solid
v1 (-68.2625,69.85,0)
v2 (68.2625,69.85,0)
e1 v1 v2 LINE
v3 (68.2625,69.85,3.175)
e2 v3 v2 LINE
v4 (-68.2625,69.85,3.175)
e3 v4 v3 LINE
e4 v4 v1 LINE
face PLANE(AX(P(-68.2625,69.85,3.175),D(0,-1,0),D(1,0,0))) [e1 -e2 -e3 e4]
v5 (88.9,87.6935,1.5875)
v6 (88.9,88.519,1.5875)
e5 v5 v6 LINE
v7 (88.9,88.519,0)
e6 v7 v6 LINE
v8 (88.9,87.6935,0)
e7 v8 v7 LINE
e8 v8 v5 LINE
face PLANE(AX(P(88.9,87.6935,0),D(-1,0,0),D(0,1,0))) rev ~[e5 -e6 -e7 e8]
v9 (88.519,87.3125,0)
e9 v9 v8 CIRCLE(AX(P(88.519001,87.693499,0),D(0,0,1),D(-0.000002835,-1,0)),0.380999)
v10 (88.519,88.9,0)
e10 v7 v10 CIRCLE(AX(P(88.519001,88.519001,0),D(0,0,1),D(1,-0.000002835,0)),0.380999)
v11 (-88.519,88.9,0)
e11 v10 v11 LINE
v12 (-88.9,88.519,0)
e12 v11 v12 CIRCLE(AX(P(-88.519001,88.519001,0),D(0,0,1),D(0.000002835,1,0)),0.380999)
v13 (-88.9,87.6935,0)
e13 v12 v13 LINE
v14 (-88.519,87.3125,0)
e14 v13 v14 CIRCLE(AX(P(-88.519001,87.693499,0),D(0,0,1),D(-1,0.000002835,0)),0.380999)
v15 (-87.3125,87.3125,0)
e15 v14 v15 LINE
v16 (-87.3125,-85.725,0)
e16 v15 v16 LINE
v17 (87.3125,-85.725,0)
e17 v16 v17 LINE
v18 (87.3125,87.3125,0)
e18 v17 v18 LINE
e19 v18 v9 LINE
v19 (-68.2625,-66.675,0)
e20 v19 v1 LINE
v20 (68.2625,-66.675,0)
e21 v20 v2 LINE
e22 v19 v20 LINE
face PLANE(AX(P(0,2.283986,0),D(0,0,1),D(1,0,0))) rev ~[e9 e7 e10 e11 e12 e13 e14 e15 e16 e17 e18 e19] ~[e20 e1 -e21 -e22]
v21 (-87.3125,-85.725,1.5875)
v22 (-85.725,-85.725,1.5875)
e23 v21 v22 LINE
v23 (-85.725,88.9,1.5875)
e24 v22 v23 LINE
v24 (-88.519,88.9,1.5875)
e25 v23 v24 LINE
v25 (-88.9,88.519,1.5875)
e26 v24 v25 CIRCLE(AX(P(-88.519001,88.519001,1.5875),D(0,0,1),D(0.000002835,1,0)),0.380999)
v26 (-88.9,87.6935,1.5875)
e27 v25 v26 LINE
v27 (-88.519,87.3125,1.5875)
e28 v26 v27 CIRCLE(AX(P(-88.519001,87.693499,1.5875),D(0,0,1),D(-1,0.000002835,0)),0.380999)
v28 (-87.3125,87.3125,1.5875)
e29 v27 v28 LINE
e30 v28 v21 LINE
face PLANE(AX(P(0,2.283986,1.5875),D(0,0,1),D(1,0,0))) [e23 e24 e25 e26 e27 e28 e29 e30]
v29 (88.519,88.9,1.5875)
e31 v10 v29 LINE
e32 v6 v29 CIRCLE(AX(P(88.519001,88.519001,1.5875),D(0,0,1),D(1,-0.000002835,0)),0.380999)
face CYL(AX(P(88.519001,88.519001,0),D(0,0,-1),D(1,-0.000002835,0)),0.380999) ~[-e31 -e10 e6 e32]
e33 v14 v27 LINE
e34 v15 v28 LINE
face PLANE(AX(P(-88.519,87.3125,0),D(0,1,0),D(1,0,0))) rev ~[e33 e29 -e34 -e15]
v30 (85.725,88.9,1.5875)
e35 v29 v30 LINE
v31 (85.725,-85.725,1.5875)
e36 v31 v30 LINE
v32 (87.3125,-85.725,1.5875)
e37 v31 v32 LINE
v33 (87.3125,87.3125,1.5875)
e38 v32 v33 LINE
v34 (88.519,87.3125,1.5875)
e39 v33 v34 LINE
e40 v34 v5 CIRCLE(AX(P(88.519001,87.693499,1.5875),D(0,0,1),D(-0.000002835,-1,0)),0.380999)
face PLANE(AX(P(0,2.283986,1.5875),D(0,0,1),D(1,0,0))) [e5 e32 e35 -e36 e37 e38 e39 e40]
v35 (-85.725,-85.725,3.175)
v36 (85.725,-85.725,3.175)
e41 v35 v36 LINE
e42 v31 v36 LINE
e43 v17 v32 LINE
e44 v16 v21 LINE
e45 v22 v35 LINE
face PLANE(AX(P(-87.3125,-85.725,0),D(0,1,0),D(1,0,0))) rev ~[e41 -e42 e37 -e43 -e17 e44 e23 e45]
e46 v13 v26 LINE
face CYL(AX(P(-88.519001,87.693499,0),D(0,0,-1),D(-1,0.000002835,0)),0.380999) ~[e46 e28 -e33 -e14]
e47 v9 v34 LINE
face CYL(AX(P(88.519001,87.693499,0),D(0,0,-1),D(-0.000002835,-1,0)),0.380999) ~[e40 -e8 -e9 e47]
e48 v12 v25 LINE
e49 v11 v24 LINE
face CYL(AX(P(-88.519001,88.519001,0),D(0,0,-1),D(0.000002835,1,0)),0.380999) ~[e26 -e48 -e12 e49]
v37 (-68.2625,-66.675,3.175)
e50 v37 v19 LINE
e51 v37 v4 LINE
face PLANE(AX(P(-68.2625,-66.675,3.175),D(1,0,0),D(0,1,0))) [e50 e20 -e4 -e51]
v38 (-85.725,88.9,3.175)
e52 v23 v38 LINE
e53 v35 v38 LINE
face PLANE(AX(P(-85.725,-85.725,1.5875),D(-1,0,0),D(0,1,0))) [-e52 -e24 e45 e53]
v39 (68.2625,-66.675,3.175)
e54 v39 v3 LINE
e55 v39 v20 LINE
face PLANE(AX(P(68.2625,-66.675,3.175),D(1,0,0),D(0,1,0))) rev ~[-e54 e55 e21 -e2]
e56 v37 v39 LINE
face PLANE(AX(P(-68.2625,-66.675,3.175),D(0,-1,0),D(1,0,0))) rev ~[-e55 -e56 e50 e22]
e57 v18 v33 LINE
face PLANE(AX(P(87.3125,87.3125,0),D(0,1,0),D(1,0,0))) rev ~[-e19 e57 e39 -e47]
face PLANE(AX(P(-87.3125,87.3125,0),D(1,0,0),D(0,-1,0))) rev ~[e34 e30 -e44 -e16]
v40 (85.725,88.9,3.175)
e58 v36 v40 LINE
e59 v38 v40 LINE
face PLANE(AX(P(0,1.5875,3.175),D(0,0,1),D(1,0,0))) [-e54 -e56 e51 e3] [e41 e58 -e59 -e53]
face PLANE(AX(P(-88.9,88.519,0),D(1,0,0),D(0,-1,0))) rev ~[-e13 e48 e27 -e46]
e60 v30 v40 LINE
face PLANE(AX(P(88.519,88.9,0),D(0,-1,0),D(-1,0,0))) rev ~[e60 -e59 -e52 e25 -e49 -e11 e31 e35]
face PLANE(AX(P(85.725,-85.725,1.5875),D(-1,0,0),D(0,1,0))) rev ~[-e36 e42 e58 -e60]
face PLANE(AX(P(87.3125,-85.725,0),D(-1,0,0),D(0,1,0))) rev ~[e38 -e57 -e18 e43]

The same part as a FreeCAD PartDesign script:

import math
import FreeCAD as App
import Part
import Sketcher
Q = App.Units.Quantity

doc = App.newDocument("Part")
params = doc.addObject("Spreadsheet::Sheet", "Params")
for row, (alias, value) in enumerate([
    ("sketch1_radius", "0.015 in"),
    ("sketch1_width", "6.97 in"),
    ("sketch1_width2", "6.875 in"),
    ("sketch1_height", "6.8125 in"),
    ("pad1_length", "0.0625 in"),
    ("sketch2_width", "6.75 in"),
    ("sketch2_height", "6.875 in"),
    ("pad2_length", "0.0625 in"),
    ("sketch3_width", "5.375 in"),
    ("pocket1_length", "1 in"),
], start=1):
    params.set(f"A{row}", alias)
    params.set(f"B{row}", "=" + value)
    params.setAlias(f"B{row}", alias)

body = doc.addObject("PartDesign::Body", "Body")

sketch1 = body.newObject("Sketcher::SketchObject", "Sketch")
sketch1.AttachmentSupport = (doc.getObject("XY_Plane"), [""])
sketch1.MapMode = "FlatFace"
sketch1.addGeometry(Part.ArcOfCircle(Part.Circle(App.Vector(-88.52, 88.52, 0), App.Vector(0, 0, 1), 0.38), math.radians(90), math.radians(180)), False)
sketch1.addGeometry(Part.LineSegment(App.Vector(-88.9, 88.52, 0), App.Vector(-88.9, 87.69, 0)), False)
sketch1.addGeometry(Part.ArcOfCircle(Part.Circle(App.Vector(-88.52, 87.69, 0), App.Vector(0, 0, 1), 0.38), math.radians(180), math.radians(270)), False)
sketch1.addGeometry(Part.LineSegment(App.Vector(-88.52, 87.31, 0), App.Vector(-87.31, 87.31, 0)), False)
sketch1.addGeometry(Part.LineSegment(App.Vector(-87.31, 87.31, 0), App.Vector(-87.31, -85.72, 0)), False)
sketch1.addGeometry(Part.LineSegment(App.Vector(-87.31, -85.72, 0), App.Vector(87.31, -85.72, 0)), False)
sketch1.addGeometry(Part.LineSegment(App.Vector(87.31, -85.72, 0), App.Vector(87.31, 87.31, 0)), False)
sketch1.addGeometry(Part.LineSegment(App.Vector(87.31, 87.31, 0), App.Vector(88.52, 87.31, 0)), False)
sketch1.addGeometry(Part.ArcOfCircle(Part.Circle(App.Vector(88.52, 87.69, 0), App.Vector(0, 0, 1), 0.38), math.radians(-90), math.radians(0)), False)
sketch1.addGeometry(Part.LineSegment(App.Vector(88.9, 87.69, 0), App.Vector(88.9, 88.52, 0)), False)
sketch1.addGeometry(Part.ArcOfCircle(Part.Circle(App.Vector(88.52, 88.52, 0), App.Vector(0, 0, 1), 0.38), math.radians(0), math.radians(90)), False)
sketch1.addGeometry(Part.LineSegment(App.Vector(88.52, 88.9, 0), App.Vector(-88.52, 88.9, 0)), False)
sketch1.addConstraint(Sketcher.Constraint("Coincident", 0, 2, 1, 1))
sketch1.addConstraint(Sketcher.Constraint("Coincident", 1, 2, 2, 1))
sketch1.addConstraint(Sketcher.Constraint("Coincident", 2, 2, 3, 1))
sketch1.addConstraint(Sketcher.Constraint("Coincident", 3, 2, 4, 1))
sketch1.addConstraint(Sketcher.Constraint("Coincident", 4, 2, 5, 1))
sketch1.addConstraint(Sketcher.Constraint("Coincident", 5, 2, 6, 1))
sketch1.addConstraint(Sketcher.Constraint("Coincident", 6, 2, 7, 1))
sketch1.addConstraint(Sketcher.Constraint("Coincident", 7, 2, 8, 1))
sketch1.addConstraint(Sketcher.Constraint("Coincident", 8, 2, 9, 1))
sketch1.addConstraint(Sketcher.Constraint("Coincident", 9, 2, 10, 1))
sketch1.addConstraint(Sketcher.Constraint("Coincident", 10, 2, 11, 1))
sketch1.addConstraint(Sketcher.Constraint("Coincident", 11, 2, 0, 1))
sketch1.addConstraint(Sketcher.Constraint("Vertical", 1))
sketch1.addConstraint(Sketcher.Constraint("Horizontal", 3))
sketch1.addConstraint(Sketcher.Constraint("Vertical", 4))
sketch1.addConstraint(Sketcher.Constraint("Horizontal", 5))
sketch1.addConstraint(Sketcher.Constraint("Vertical", 6))
sketch1.addConstraint(Sketcher.Constraint("Horizontal", 7))
sketch1.addConstraint(Sketcher.Constraint("Vertical", 9))
sketch1.addConstraint(Sketcher.Constraint("Horizontal", 11))
sketch1.addConstraint(Sketcher.Constraint("Equal", 0, 2))
sketch1.addConstraint(Sketcher.Constraint("Equal", 2, 8))
sketch1.addConstraint(Sketcher.Constraint("Equal", 8, 10))
sketch1.addConstraint(Sketcher.Constraint("Symmetric", 2, 3, 8, 3, -2))
sketch1.addConstraint(Sketcher.Constraint("Horizontal", 10, 3, 0, 2))
sketch1.addConstraint(Sketcher.Constraint("Horizontal", 8, 3, 1, 2))
sketch1.addConstraint(Sketcher.Constraint("Horizontal", 1, 2, 8, 2))
sketch1.addConstraint(Sketcher.Constraint("Horizontal", 0, 2, 9, 2))
sketch1.addConstraint(Sketcher.Constraint("Vertical", 0, 3, 2, 2))
sketch1.addConstraint(Sketcher.Constraint("Vertical", 10, 3, 7, 2))
sketch1.addConstraint(Sketcher.Constraint("Vertical", 7, 2, 10, 2))
sketch1.addConstraint(Sketcher.Constraint("Vertical", 2, 2, 11, 2))
sketch1.addConstraint(Sketcher.Constraint("Equal", 3, 7))
sketch1.addConstraint(Sketcher.Constraint("Radius", 0, Q("0.015 in")))
sketch1.addConstraint(Sketcher.Constraint("DistanceX", 11, 2, 11, 1, Q("6.97 in")))
sketch1.addConstraint(Sketcher.Constraint("DistanceY", -1, 1, 10, 2, Q("3.5 in")))
sketch1.addConstraint(Sketcher.Constraint("DistanceX", 5, 1, 5, 2, Q("6.875 in")))
sketch1.addConstraint(Sketcher.Constraint("DistanceY", 4, 2, 4, 1, Q("6.8125 in")))
sketch1.addConstraint(Sketcher.Constraint("DistanceY", 4, 2, 0, 3, Q("6.86 in")))
sketch1.setExpression("Constraints[33]", "Params.sketch1_radius")
sketch1.setExpression("Constraints[34]", "Params.sketch1_width")
sketch1.setExpression("Constraints[36]", "Params.sketch1_width2")
sketch1.setExpression("Constraints[37]", "Params.sketch1_height")
pad1 = body.newObject("PartDesign::Pad", "Pad")
pad1.Profile = sketch1
pad1.setExpression("Length", "Params.pad1_length")

sketch2 = body.newObject("Sketcher::SketchObject", "Sketch001")
sketch2.AttachmentSupport = (doc.getObject("XY_Plane"), [""])
sketch2.MapMode = "FlatFace"
sketch2.AttachmentOffset = App.Placement(App.Vector(0, 0, 0.0625 * 25.4), App.Rotation())
sketch2.addGeometry(Part.LineSegment(App.Vector(-86, 89, 0), App.Vector(-86, -86, 0)), False)
sketch2.addGeometry(Part.LineSegment(App.Vector(-86, -86, 0), App.Vector(86, -86, 0)), False)
sketch2.addGeometry(Part.LineSegment(App.Vector(86, -86, 0), App.Vector(86, 89, 0)), False)
sketch2.addGeometry(Part.LineSegment(App.Vector(86, 89, 0), App.Vector(-86, 89, 0)), False)
sketch2.addConstraint(Sketcher.Constraint("Coincident", 0, 2, 1, 1))
sketch2.addConstraint(Sketcher.Constraint("Coincident", 1, 2, 2, 1))
sketch2.addConstraint(Sketcher.Constraint("Coincident", 2, 2, 3, 1))
sketch2.addConstraint(Sketcher.Constraint("Coincident", 3, 2, 0, 1))
sketch2.addConstraint(Sketcher.Constraint("Vertical", 0))
sketch2.addConstraint(Sketcher.Constraint("Horizontal", 1))
sketch2.addConstraint(Sketcher.Constraint("Vertical", 2))
sketch2.addConstraint(Sketcher.Constraint("Horizontal", 3))
sketch2.addConstraint(Sketcher.Constraint("DistanceX", 1, 1, 1, 2, Q("6.75 in")))
sketch2.addConstraint(Sketcher.Constraint("DistanceY", -1, 1, 2, 2, Q("3.5 in")))
sketch2.addConstraint(Sketcher.Constraint("DistanceY", 0, 2, 0, 1, Q("6.875 in")))
sketch2.addConstraint(Sketcher.Constraint("DistanceX", 0, 2, -1, 1, Q("3.375 in")))
sketch2.setExpression("Constraints[8]", "Params.sketch2_width")
sketch2.setExpression("Constraints[10]", "Params.sketch2_height")
pad2 = body.newObject("PartDesign::Pad", "Pad001")
pad2.Profile = sketch2
pad2.setExpression("Length", "Params.pad2_length")

sketch3 = body.newObject("Sketcher::SketchObject", "Sketch002")
sketch3.AttachmentSupport = (doc.getObject("XY_Plane"), [""])
sketch3.MapMode = "FlatFace"
sketch3.AttachmentOffset = App.Placement(App.Vector(0, 0, 0.125 * 25.4), App.Rotation())
sketch3.addGeometry(Part.LineSegment(App.Vector(-68, 70, 0), App.Vector(-68, -67, 0)), False)
sketch3.addGeometry(Part.LineSegment(App.Vector(-68, -67, 0), App.Vector(68, -67, 0)), False)
sketch3.addGeometry(Part.LineSegment(App.Vector(68, -67, 0), App.Vector(68, 70, 0)), False)
sketch3.addGeometry(Part.LineSegment(App.Vector(68, 70, 0), App.Vector(-68, 70, 0)), False)
sketch3.addConstraint(Sketcher.Constraint("Coincident", 0, 2, 1, 1))
sketch3.addConstraint(Sketcher.Constraint("Coincident", 1, 2, 2, 1))
sketch3.addConstraint(Sketcher.Constraint("Coincident", 2, 2, 3, 1))
sketch3.addConstraint(Sketcher.Constraint("Coincident", 3, 2, 0, 1))
sketch3.addConstraint(Sketcher.Constraint("Vertical", 0))
sketch3.addConstraint(Sketcher.Constraint("Horizontal", 1))
sketch3.addConstraint(Sketcher.Constraint("Vertical", 2))
sketch3.addConstraint(Sketcher.Constraint("Horizontal", 3))
sketch3.addConstraint(Sketcher.Constraint("Equal", 3, 0))
sketch3.addConstraint(Sketcher.Constraint("DistanceX", 1, 1, 1, 2, Q("5.375 in")))
sketch3.addConstraint(Sketcher.Constraint("DistanceY", -1, 1, 2, 2, Q("2.75 in")))
sketch3.addConstraint(Sketcher.Constraint("DistanceX", 0, 2, -1, 1, Q("2.6875 in")))
sketch3.setExpression("Constraints[9]", "Params.sketch3_width")
pocket1 = body.newObject("PartDesign::Pocket", "Pocket")
pocket1.Profile = sketch3
pocket1.setExpression("Length", "Params.pocket1_length")

doc.recompute()
